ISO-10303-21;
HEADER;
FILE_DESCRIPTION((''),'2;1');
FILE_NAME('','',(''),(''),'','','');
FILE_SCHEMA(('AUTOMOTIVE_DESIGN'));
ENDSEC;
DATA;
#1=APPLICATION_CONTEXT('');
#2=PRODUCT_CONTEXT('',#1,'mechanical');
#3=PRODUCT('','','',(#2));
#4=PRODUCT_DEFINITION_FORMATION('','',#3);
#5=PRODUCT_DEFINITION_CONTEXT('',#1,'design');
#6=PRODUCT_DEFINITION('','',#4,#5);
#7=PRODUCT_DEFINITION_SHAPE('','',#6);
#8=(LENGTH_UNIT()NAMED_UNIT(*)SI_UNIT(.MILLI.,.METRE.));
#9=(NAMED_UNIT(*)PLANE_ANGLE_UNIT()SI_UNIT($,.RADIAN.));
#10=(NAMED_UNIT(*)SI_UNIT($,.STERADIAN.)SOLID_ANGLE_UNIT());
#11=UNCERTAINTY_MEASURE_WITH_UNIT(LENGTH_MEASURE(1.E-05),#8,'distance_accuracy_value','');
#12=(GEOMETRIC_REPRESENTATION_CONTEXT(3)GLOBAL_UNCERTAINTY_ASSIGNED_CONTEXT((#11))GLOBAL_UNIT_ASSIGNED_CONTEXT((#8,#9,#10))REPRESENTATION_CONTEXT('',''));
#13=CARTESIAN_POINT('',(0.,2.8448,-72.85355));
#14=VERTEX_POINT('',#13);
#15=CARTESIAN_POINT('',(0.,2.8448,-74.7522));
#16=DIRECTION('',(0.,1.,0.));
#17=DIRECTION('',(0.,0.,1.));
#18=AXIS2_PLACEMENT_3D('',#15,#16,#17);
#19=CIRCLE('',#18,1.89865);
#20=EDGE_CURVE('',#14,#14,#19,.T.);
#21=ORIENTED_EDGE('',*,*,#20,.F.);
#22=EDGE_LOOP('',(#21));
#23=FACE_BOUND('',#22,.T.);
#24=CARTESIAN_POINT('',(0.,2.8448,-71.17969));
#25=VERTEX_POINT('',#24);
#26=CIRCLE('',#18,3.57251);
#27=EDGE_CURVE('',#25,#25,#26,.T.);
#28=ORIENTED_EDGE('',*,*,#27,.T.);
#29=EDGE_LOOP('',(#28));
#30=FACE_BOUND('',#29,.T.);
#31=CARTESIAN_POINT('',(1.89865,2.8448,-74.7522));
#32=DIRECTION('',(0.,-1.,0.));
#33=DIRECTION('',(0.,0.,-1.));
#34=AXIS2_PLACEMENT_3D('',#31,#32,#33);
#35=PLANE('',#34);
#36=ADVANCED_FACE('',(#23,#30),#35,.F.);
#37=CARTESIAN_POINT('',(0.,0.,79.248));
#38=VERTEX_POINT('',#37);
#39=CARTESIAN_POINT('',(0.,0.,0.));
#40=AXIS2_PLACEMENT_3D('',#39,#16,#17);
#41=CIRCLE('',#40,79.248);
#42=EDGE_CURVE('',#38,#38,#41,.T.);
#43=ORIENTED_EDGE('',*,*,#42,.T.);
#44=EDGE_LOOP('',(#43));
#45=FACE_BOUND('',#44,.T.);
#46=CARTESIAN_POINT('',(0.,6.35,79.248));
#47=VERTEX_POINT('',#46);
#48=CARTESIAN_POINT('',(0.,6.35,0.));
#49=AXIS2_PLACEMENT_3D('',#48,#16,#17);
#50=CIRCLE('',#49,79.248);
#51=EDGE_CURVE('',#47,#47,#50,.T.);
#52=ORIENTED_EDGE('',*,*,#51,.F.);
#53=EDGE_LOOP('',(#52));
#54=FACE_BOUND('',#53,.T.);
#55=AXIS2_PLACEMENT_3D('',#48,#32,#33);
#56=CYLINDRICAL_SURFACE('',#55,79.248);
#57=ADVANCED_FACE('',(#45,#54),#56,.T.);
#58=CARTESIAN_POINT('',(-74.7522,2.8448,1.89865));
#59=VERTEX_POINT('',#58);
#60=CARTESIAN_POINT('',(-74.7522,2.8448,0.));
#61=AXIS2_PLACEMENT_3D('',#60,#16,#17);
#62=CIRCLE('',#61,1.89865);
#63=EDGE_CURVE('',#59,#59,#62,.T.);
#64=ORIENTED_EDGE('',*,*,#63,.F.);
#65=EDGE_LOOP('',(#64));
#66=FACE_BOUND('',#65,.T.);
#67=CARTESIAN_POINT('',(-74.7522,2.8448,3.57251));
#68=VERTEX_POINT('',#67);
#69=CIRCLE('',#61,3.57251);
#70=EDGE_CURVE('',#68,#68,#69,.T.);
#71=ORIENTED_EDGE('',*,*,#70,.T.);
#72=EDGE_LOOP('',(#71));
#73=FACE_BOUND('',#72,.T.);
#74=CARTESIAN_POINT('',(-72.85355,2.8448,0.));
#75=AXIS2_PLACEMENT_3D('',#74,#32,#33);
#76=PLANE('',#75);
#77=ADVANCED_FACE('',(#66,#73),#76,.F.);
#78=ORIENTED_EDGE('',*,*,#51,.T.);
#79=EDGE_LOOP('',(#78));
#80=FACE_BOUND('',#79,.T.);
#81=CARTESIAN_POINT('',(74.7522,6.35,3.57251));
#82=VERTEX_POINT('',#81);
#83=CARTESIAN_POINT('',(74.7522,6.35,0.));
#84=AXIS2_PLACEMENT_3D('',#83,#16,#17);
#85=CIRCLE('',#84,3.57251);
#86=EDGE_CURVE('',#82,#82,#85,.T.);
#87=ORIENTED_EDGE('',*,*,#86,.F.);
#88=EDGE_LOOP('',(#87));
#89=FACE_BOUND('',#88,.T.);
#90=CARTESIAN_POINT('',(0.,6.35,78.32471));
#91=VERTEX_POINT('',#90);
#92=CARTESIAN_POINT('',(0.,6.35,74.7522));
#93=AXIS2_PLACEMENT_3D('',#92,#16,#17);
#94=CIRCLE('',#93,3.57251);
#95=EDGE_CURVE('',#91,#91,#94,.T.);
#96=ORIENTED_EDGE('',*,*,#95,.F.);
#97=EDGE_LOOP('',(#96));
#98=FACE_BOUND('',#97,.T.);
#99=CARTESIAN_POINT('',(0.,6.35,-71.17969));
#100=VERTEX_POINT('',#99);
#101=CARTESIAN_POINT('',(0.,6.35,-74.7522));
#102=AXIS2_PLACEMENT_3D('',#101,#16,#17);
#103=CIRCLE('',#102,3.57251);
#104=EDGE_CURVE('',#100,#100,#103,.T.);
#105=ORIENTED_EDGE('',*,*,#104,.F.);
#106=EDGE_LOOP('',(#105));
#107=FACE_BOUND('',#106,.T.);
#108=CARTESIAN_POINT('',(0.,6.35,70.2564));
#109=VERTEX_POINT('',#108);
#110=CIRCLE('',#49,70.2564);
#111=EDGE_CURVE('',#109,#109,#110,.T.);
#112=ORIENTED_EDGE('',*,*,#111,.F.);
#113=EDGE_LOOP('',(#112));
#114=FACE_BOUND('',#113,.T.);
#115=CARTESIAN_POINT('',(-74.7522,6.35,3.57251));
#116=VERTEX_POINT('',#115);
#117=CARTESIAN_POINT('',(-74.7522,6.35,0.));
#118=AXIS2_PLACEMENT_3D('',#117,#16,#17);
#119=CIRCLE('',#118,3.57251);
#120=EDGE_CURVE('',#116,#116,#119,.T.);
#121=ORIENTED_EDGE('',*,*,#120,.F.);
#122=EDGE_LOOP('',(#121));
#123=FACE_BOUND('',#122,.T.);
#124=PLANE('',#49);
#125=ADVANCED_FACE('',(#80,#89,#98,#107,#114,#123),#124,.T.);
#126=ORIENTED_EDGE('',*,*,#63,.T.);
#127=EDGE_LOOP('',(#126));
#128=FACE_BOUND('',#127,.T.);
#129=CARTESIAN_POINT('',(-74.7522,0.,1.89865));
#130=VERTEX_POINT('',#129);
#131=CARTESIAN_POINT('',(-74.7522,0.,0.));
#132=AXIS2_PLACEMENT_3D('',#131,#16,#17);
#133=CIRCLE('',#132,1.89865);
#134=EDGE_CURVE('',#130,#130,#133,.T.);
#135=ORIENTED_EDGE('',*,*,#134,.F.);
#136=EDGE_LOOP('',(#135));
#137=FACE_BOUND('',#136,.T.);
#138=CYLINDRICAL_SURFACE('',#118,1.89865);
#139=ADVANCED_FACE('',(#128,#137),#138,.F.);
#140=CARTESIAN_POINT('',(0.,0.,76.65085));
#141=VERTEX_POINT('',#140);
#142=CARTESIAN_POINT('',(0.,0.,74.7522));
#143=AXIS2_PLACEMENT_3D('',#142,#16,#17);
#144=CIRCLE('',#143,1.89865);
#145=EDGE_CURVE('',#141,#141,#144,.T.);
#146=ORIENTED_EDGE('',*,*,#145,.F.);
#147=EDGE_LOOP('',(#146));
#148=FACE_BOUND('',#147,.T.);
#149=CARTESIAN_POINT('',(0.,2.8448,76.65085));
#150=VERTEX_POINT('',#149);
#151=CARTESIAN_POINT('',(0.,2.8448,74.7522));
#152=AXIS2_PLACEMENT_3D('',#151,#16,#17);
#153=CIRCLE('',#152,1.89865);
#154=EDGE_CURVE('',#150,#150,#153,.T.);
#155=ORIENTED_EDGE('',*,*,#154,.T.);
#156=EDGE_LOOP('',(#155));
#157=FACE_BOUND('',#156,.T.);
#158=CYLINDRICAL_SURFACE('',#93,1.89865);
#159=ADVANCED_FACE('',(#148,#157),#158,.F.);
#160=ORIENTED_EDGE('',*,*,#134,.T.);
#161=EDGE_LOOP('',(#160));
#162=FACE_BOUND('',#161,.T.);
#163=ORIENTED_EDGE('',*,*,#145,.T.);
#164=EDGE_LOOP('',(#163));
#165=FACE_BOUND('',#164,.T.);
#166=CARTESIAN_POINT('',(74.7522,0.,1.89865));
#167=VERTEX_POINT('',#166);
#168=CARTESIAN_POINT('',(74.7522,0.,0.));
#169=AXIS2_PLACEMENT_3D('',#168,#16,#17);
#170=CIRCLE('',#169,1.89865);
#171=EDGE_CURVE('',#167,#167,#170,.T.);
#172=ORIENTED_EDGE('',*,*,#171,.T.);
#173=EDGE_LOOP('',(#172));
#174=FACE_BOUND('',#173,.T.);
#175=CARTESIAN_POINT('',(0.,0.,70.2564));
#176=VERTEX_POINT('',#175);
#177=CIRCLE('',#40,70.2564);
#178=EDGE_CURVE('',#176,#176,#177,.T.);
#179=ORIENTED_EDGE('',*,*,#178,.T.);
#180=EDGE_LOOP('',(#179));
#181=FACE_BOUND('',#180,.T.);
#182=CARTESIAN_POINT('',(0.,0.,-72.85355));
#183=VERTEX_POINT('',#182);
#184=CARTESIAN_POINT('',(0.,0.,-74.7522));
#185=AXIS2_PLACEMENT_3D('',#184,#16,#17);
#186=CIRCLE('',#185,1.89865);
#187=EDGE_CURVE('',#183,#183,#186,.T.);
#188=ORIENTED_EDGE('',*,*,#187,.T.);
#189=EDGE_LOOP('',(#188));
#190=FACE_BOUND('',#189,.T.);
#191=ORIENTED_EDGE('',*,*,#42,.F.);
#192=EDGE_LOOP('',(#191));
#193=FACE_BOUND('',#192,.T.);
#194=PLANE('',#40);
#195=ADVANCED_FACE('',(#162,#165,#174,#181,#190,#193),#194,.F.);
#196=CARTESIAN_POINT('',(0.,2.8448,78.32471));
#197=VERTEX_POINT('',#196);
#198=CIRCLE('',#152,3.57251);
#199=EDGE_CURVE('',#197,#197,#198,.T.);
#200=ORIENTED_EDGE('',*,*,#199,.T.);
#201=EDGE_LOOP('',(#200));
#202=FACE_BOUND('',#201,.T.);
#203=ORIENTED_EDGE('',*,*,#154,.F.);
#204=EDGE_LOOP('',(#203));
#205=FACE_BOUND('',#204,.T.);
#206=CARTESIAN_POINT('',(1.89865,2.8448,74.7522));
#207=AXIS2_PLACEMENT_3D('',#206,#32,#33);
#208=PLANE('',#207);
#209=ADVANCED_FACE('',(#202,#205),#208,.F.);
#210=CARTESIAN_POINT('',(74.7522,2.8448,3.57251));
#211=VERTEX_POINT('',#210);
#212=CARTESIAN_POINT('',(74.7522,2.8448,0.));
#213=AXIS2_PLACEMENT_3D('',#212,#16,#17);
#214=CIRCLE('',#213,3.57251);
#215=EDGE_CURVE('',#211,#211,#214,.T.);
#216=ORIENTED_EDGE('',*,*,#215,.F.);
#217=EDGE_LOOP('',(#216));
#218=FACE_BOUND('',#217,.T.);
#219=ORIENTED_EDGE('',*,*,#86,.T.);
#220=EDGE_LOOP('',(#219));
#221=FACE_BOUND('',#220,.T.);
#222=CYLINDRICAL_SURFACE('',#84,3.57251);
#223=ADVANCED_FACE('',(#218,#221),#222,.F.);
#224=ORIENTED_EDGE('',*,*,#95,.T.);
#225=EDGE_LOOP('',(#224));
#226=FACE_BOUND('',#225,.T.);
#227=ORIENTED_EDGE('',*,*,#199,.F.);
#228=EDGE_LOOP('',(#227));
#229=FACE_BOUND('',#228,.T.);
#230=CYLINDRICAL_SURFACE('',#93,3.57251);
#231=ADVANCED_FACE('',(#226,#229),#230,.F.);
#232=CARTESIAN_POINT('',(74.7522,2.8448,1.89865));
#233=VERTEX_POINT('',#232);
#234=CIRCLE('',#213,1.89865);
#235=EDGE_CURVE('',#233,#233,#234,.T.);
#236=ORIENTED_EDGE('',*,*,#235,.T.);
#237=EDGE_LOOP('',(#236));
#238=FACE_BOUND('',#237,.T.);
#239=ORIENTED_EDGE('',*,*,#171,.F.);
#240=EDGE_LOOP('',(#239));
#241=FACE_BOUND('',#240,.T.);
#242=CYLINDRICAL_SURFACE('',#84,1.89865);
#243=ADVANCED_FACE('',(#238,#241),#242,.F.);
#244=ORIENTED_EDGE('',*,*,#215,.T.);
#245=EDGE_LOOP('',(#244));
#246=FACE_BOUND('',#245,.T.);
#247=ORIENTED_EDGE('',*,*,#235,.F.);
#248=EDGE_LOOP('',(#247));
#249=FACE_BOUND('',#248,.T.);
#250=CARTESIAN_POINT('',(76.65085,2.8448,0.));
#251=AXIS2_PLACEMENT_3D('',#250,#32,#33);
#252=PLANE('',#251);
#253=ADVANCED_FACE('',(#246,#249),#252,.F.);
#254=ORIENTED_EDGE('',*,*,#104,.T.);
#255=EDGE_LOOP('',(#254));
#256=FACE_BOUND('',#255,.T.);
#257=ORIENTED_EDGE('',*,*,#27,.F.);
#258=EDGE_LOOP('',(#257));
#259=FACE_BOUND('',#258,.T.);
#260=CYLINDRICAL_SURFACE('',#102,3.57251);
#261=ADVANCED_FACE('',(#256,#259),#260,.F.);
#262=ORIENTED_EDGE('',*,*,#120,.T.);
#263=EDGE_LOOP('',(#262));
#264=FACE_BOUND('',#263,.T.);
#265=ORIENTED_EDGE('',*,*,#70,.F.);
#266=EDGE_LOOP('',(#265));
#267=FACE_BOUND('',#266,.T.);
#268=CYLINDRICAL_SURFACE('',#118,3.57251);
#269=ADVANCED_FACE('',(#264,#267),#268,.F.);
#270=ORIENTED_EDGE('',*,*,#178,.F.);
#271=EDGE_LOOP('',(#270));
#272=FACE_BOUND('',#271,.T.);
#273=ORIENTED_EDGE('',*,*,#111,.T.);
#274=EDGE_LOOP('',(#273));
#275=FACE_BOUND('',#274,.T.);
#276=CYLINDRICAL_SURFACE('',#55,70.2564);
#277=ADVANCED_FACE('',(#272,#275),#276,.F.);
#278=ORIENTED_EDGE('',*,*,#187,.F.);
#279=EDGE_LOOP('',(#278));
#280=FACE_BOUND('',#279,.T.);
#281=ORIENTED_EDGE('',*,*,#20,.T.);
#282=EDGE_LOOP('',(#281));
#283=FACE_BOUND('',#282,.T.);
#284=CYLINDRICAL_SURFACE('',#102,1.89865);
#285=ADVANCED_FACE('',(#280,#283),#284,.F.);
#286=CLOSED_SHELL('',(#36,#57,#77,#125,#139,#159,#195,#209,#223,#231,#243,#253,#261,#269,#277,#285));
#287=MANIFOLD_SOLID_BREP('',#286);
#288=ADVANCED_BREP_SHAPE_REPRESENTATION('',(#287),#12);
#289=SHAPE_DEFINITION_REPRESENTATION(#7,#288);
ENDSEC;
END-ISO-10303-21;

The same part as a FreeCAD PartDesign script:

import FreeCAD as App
import Part
import Sketcher
from FreeCAD import Vector
Q = App.Units.Quantity

doc = App.newDocument("Part")
params = doc.addObject("Spreadsheet::Sheet", "Params")
for row, (alias, value) in enumerate([
    ("sketch1_diameter", "6.24 in"),
    ("sketch1_diameter2", "5.532 in"),
    ("pad1_length", "0.25 in"),
    ("hole_diameter", "0.1495 in"),
    ("hole_cbore_diameter", "0.2813 in"),
    ("hole_cbore_depth", "0.138 in"),
], start=1):
    params.set(f"A{row}", alias)
    params.set(f"B{row}", "=" + value)
    params.setAlias(f"B{row}", alias)

body = doc.addObject("PartDesign::Body", "Body")

sketch1 = body.newObject("Sketcher::SketchObject", "Sketch")
sketch1.AttachmentSupport = (doc.getObject("XZ_Plane"), [""])
sketch1.MapMode = "FlatFace"
sketch1.addGeometry(Part.Circle(Vector(0, 0, 0), Vector(0, 0, 1), 79.248), False)
sketch1.addGeometry(Part.Circle(Vector(0, 0, 0), Vector(0, 0, 1), 70.2564), False)
sketch1.addConstraint(Sketcher.Constraint("Coincident", 0, 3, -1, 1))
sketch1.addConstraint(Sketcher.Constraint("Coincident", 1, 3, -1, 1))
sketch1.addConstraint(Sketcher.Constraint("Diameter", 0, Q("6.24 in")))
sketch1.addConstraint(Sketcher.Constraint("Diameter", 1, Q("5.532 in")))
sketch1.setExpression("Constraints[2]", "Params.sketch1_diameter")
sketch1.setExpression("Constraints[3]", "Params.sketch1_diameter2")
pad1 = body.newObject("PartDesign::Pad", "Pad")
pad1.Profile = sketch1
pad1.setExpression("Length", "Params.pad1_length")
pad1.Reversed = True

sketch2 = body.newObject("Sketcher::SketchObject", "Sketch001")
sketch2.AttachmentSupport = (doc.getObject("XZ_Plane"), [""])
sketch2.MapMode = "FlatFace"
sketch2.AttachmentOffset = App.Placement(Vector(0, 0, -0.25 * 25.4), App.Rotation())
sketch2.addGeometry(Part.Circle(Vector(0, -74.7522, 0), Vector(0, 0, 1), 1.89865), False)
sketch2.addGeometry(Part.Circle(Vector(0, 74.7522, 0), Vector(0, 0, 1), 1.89865), False)
sketch2.addGeometry(Part.Circle(Vector(74.7522, 0, 0), Vector(0, 0, 1), 1.89865), False)
sketch2.addGeometry(Part.Circle(Vector(-74.7522, 0, 0), Vector(0, 0, 1), 1.89865), False)
sketch2.addConstraint(Sketcher.Constraint("Equal", 0, 1))
sketch2.addConstraint(Sketcher.Constraint("Equal", 1, 2))
sketch2.addConstraint(Sketcher.Constraint("Equal", 2, 3))
sketch2.addConstraint(Sketcher.Constraint("Symmetric", 0, 3, 1, 3, -1, 1))
sketch2.addConstraint(Sketcher.Constraint("Symmetric", 2, 3, 3, 3, -1, 1))
sketch2.addConstraint(Sketcher.Constraint("PointOnObject", 0, 3, -2))
sketch2.addConstraint(Sketcher.Constraint("PointOnObject", 2, 3, -1))
sketch2.addConstraint(Sketcher.Constraint("Diameter", 0, Q("0.1495 in")))
sketch2.addConstraint(Sketcher.Constraint("DistanceY", 0, 3, -1, 1, Q("2.943 in")))
sketch2.addConstraint(Sketcher.Constraint("DistanceX", -1, 1, 2, 3, Q("2.943 in")))
doc.recompute()
hole = body.newObject("PartDesign::Hole", "Hole")
hole.Profile = sketch2
hole.ThreadType = "None"
hole.setExpression("Diameter", "Params.hole_diameter")
hole.DepthType = "ThroughAll"
hole.HoleCutType = "Counterbore"
hole.setExpression("HoleCutDiameter", "Params.hole_cbore_diameter")
hole.setExpression("HoleCutDepth", "Params.hole_cbore_depth")
hole.Reversed = True

doc.recompute()
